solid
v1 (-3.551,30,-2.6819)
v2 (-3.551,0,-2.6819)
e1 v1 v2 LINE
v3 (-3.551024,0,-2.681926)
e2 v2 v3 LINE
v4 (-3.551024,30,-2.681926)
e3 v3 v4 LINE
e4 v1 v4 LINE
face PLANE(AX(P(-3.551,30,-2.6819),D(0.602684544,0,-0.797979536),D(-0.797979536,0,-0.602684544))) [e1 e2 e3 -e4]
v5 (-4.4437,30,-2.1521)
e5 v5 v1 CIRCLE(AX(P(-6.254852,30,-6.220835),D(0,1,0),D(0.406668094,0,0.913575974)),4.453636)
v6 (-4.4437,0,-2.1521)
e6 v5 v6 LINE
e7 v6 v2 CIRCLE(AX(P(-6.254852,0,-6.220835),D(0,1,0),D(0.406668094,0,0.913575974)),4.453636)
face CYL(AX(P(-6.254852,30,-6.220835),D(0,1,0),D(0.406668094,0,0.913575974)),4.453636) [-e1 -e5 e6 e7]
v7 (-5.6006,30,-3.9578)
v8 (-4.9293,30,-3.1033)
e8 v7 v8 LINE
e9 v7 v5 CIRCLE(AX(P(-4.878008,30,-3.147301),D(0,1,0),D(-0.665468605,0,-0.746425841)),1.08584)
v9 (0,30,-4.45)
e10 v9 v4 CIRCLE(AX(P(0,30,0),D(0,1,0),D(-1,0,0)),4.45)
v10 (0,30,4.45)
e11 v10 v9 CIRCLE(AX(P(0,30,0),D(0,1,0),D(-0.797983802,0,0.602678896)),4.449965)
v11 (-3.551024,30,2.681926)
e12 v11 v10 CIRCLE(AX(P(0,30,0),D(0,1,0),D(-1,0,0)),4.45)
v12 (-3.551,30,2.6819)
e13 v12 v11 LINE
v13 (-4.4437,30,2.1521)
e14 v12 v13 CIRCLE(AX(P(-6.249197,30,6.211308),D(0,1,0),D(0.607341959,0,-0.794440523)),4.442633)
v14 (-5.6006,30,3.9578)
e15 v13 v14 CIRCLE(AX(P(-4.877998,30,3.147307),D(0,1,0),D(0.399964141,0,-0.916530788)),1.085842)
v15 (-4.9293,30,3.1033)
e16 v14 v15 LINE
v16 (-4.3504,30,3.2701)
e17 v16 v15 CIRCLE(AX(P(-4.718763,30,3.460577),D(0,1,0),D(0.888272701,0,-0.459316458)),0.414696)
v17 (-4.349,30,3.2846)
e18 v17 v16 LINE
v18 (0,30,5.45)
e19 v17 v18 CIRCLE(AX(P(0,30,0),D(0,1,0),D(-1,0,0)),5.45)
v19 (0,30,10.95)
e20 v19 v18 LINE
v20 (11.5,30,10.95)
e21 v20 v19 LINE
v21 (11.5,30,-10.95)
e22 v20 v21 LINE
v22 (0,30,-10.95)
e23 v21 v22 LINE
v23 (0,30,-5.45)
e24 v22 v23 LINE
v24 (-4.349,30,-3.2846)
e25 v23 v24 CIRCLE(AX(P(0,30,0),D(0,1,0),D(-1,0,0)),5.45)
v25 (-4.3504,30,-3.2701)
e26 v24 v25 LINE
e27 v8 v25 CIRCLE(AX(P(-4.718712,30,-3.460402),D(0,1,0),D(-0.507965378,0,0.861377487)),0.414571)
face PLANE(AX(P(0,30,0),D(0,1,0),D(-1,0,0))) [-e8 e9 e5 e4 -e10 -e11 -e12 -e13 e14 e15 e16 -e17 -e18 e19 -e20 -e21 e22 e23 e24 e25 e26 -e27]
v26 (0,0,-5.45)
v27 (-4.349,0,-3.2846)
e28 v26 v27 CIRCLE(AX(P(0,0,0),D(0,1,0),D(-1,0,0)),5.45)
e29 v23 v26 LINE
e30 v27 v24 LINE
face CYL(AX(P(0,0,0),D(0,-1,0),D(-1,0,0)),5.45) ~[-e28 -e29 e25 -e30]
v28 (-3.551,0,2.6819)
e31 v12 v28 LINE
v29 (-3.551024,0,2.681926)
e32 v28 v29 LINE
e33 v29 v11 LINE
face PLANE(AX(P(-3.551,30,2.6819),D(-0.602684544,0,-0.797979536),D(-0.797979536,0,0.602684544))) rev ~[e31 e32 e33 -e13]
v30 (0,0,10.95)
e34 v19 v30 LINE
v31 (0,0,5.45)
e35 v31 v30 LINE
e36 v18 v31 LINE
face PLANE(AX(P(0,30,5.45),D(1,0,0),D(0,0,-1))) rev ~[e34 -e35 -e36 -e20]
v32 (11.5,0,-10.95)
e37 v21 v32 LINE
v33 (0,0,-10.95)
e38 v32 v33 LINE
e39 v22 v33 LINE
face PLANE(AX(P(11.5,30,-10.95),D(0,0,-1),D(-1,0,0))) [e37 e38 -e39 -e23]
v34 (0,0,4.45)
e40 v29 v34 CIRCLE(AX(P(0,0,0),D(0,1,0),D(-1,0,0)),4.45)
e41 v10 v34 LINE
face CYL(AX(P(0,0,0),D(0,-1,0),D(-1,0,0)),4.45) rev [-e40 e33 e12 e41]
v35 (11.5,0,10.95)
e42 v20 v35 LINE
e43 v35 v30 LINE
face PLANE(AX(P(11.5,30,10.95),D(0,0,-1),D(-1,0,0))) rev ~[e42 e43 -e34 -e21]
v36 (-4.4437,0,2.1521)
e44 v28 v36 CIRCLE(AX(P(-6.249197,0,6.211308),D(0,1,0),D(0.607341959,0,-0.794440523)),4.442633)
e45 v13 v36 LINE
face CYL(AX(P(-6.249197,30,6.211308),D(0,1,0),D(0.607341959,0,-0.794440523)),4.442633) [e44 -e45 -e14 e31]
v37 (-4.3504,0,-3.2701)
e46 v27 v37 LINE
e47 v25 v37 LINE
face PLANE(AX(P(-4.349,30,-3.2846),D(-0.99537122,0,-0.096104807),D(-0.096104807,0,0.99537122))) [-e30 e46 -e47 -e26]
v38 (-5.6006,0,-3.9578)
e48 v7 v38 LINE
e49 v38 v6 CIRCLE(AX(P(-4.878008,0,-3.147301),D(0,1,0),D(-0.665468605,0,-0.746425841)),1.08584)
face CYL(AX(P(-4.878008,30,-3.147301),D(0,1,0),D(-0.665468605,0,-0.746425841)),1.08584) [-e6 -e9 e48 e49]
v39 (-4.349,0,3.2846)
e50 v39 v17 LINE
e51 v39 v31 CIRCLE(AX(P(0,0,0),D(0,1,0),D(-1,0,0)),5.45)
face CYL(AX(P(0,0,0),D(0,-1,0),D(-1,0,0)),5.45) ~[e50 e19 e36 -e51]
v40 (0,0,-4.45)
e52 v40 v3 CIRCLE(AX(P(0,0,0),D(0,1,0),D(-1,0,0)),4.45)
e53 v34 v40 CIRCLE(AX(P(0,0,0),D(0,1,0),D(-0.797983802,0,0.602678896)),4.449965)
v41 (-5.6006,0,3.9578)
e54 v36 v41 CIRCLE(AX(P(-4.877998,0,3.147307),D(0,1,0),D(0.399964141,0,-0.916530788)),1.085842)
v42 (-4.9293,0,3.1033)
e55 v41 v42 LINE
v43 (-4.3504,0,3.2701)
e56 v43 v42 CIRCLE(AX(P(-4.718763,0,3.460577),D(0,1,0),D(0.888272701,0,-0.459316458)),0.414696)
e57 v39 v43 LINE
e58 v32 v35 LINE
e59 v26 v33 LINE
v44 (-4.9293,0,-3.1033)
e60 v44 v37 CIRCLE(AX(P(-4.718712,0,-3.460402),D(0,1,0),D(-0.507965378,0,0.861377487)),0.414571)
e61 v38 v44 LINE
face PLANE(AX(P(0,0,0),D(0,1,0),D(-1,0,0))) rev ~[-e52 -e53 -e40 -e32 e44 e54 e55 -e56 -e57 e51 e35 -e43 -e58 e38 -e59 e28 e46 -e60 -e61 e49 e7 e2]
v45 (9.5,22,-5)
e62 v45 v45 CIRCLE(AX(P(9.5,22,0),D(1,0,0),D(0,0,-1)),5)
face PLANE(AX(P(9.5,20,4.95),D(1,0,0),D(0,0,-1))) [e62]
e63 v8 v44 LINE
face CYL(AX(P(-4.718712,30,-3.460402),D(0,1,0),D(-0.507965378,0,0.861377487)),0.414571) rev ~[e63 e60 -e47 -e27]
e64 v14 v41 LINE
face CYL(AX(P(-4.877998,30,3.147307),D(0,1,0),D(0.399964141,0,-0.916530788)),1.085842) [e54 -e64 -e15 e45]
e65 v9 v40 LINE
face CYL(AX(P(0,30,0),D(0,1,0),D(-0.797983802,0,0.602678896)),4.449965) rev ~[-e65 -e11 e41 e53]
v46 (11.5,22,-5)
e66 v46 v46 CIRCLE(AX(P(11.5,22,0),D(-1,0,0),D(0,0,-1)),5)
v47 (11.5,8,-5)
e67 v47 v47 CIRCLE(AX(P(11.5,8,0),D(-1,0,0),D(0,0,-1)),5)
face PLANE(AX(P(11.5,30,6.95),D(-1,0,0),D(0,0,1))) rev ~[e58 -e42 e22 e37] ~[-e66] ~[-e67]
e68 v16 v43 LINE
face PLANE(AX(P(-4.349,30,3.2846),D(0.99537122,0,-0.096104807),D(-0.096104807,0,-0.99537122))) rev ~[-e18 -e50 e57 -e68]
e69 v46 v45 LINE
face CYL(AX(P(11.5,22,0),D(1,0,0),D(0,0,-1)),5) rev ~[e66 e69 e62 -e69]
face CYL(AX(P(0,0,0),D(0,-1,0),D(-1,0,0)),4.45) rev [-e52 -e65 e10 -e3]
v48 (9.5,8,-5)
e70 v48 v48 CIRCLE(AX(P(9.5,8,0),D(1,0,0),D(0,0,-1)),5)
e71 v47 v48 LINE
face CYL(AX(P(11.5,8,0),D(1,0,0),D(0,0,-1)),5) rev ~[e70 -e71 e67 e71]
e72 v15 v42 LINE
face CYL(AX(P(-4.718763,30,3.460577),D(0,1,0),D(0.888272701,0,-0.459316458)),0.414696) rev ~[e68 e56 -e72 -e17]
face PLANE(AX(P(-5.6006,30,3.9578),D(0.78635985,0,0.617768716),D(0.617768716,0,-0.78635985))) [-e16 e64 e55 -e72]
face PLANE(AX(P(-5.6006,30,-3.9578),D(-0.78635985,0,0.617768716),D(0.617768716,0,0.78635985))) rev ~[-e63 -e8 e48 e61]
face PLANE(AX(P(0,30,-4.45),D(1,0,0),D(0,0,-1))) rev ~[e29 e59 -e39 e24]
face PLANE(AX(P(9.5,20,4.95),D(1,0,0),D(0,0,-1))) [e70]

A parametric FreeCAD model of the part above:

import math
import FreeCAD as App
import Part
import Sketcher
from FreeCAD import Vector

doc = App.newDocument("Part")
params = doc.addObject("Spreadsheet::Sheet", "Params")
for row, (alias, value) in enumerate([
    ("sketch1_radius", "4.45 mm"),
    ("sketch1_radius2", "5.45 mm"),
    ("pad1_length", "30 mm"),
    ("sketch2_height", "6.5 mm"),
    ("sketch2_height2", "21.9 mm"),
    ("sketch2_width", "11.5 mm"),
    ("pad2_length", "30 mm"),
    ("sketch3_diameter", "10 mm"),
    ("pocket1_length", "2 mm"),
    ("sketch4_length", "1 mm"),
    ("pad3_length", "30 mm"),
], start=1):
    params.set(f"A{row}", alias)
    params.set(f"B{row}", "=" + value)
    params.setAlias(f"B{row}", alias)

body = doc.addObject("PartDesign::Body", "Body")

# Sketch on XZ plane
sketch1 = doc.addObject("Sketcher::SketchObject", "Sketch")
body.addObject(sketch1)
sketch1.AttachmentSupport = (doc.XZ_Plane, [""])
sketch1.MapMode = "FlatFace"
sketch1.addGeometry([
    Part.ArcOfCircle(Part.Circle(Vector(0, 0, 0), Vector(0, 0, 1), 4.45), math.radians(-142.937924), math.radians(142.937924)),
    Part.LineSegment(Vector(-3.551024, 2.681926, 0), Vector(-4.349, 3.2846, 0)),
    Part.ArcOfCircle(Part.Circle(Vector(0, 0, 0), Vector(0, 0, 1), 5.45), math.radians(-142.937924), math.radians(142.937924)),
    Part.LineSegment(Vector(-4.349, -3.2846, 0), Vector(-3.551024, -2.681926, 0)),
], False)
sketch1.addConstraint([
    Sketcher.Constraint("Coincident", 0, 2, 1, 1),
    Sketcher.Constraint("Coincident", 1, 2, 2, 2),
    Sketcher.Constraint("Coincident", 2, 1, 3, 1),
    Sketcher.Constraint("Coincident", 3, 2, 0, 1),
    Sketcher.Constraint("Coincident", 0, 3, -1, 1),
    Sketcher.Constraint("Coincident", 2, 3, -1, 1),
    Sketcher.Constraint("Vertical", 1, 2, 2, 1),
    Sketcher.Constraint("Vertical", 0, 2, 3, 2),
    Sketcher.Constraint("Radius", 0, 4.45),
    Sketcher.Constraint("Radius", 2, 5.45),
    Sketcher.Constraint("DistanceX", 0, 2, -1, 1, 3.551),
    Sketcher.Constraint("DistanceX", 1, 2, -1, 1, 4.349),
])
sketch1.setExpression("Constraints[8]", "Params.sketch1_radius")
sketch1.setExpression("Constraints[9]", "Params.sketch1_radius2")
pad1 = doc.addObject("PartDesign::Pad", "Pad")
body.addObject(pad1)
pad1.Profile = sketch1
pad1.setExpression("Length", "Params.pad1_length")
pad1.Reversed = True

# Sketch on XZ plane
sketch2 = doc.addObject("Sketcher::SketchObject", "Sketch001")
body.addObject(sketch2)
sketch2.AttachmentSupport = (doc.XZ_Plane, [""])
sketch2.MapMode = "FlatFace"
sketch2.AttachmentOffset = App.Placement(Vector(0, 0, -30), App.Rotation())
sketch2.addGeometry([
    Part.LineSegment(Vector(0, 4.45, 0), Vector(0, 10.95, 0)),  # 0
    Part.LineSegment(Vector(0, 10.95, 0), Vector(11.5, 10.95, 0)),  # 1
    Part.LineSegment(Vector(11.5, 10.95, 0), Vector(11.5, -10.95, 0)),  # 2
    Part.LineSegment(Vector(11.5, -10.95, 0), Vector(0, -10.95, 0)),  # 3
    Part.LineSegment(Vector(0, -10.95, 0), Vector(0, -4.45, 0)),  # 4
    Part.ArcOfCircle(Part.Circle(Vector(0, 0, 0), Vector(0, 0, 1), 4.449965), math.radians(-90), math.radians(90)),  # 5
], False)
sketch2.addConstraint([
    Sketcher.Constraint("Coincident", 0, 2, 1, 1),
    Sketcher.Constraint("Coincident", 1, 2, 2, 1),
    Sketcher.Constraint("Coincident", 2, 2, 3, 1),
    Sketcher.Constraint("Coincident", 3, 2, 4, 1),
    Sketcher.Constraint("Coincident", 4, 2, 5, 1),
    Sketcher.Constraint("Coincident", 5, 2, 0, 1),
    Sketcher.Constraint("Vertical", 0),
    Sketcher.Constraint("Horizontal", 1),
    Sketcher.Constraint("Vertical", 2),
    Sketcher.Constraint("Horizontal", 3),
    Sketcher.Constraint("Vertical", 4),
    Sketcher.Constraint("Coincident", 5, 3, -1, 1),
    Sketcher.Constraint("Symmetric", 0, 2, 3, 2, -1, 1),
    Sketcher.Constraint("PointOnObject", 0, 2, -2),
    Sketcher.Constraint("DistanceY", 0, 1, 0, 2, 6.5),
    Sketcher.Constraint("DistanceY", 2, 2, 2, 1, 21.9),
    Sketcher.Constraint("DistanceX", 1, 1, 1, 2, 11.5),
])
sketch2.setExpression("Constraints[14]", "Params.sketch2_height")
sketch2.setExpression("Constraints[15]", "Params.sketch2_height2")
sketch2.setExpression("Constraints[16]", "Params.sketch2_width")
pad2 = doc.addObject("PartDesign::Pad", "Pad001")
body.addObject(pad2)
pad2.Profile = sketch2
pad2.setExpression("Length", "Params.pad2_length")

# Sketch on YZ plane
sketch3 = doc.addObject("Sketcher::SketchObject", "Sketch002")
body.addObject(sketch3)
sketch3.AttachmentSupport = (doc.YZ_Plane, [""])
sketch3.MapMode = "FlatFace"
sketch3.AttachmentOffset = App.Placement(Vector(0, 0, 11.5), App.Rotation())
sketch3.addGeometry([
    Part.Circle(Vector(8, 0, 0), Vector(0, 0, 1), 5),
    Part.Circle(Vector(22, 0, 0), Vector(0, 0, 1), 5),
], False)
sketch3.addConstraint([
    Sketcher.Constraint("Equal", 0, 1),
    Sketcher.Constraint("PointOnObject", 0, 3, -1),
    Sketcher.Constraint("PointOnObject", 1, 3, -1),
    Sketcher.Constraint("Diameter", 0, 10.0),
    Sketcher.Constraint("DistanceX", -1, 1, 0, 3, 8.0),
    Sketcher.Constraint("DistanceX", -1, 1, 1, 3, 22.0),
])
sketch3.setExpression("Constraints[3]", "Params.sketch3_diameter")
pocket1 = doc.addObject("PartDesign::Pocket", "Pocket")
body.addObject(pocket1)
pocket1.Profile = sketch3
pocket1.setExpression("Length", "Params.pocket1_length")

# Sketch on XZ plane
sketch4 = doc.addObject("Sketcher::SketchObject", "Sketch003")
body.addObject(sketch4)
sketch4.AttachmentSupport = (doc.XZ_Plane, [""])
sketch4.MapMode = "FlatFace"
sketch4.AttachmentOffset = App.Placement(Vector(0, 0, -30), App.Rotation())
sketch4.addGeometry([
    Part.LineSegment(Vector(-4.349, 3.2846, 0), Vector(-3.551, 2.6819, 0)),  # 0
    Part.ArcOfCircle(Part.Circle(Vector(-6.249197, 6.211308, 0), Vector(0, 0, 1), 4.442633), math.radians(-66.020951), math.radians(-52.602444)),  # 1
    Part.ArcOfCircle(Part.Circle(Vector(-4.878, 3.1473, 0), Vector(0, 0, 1), 1.085836), math.radians(131.71855), math.radians(293.576201)),  # 2
    Part.LineSegment(Vector(-5.6006, 3.9578, 0), Vector(-4.9293, 3.1033, 0)),  # 3
    Part.ArcOfCircle(Part.Circle(Vector(-4.7187, 3.4605, 0), Vector(0, 0, 1), 0.414605), math.radians(-120.522992), math.radians(-27.337601)),  # 4
    Part.LineSegment(Vector(-4.3504, 3.2701, 0), Vector(-4.349, 3.2846, 0)),  # 5
    Part.ArcOfCircle(Part.Circle(Vector(-4.878, -3.1473, 0), Vector(0, 0, 1), 1.085846), math.radians(66.423799), math.radians(228.28145)),  # 6
    Part.ArcOfCircle(Part.Circle(Vector(-6.254852, -6.220835, 0), Vector(0, 0, 1), 4.453636), math.radians(52.619095), math.radians(66.004299)),  # 7
    Part.LineSegment(Vector(-3.551, -2.6819, 0), Vector(-4.349, -3.2846, 0)),  # 8
    Part.LineSegment(Vector(-4.349, -3.2846, 0), Vector(-4.3504, -3.2701, 0)),  # 9
    Part.ArcOfCircle(Part.Circle(Vector(-4.7187, -3.4605, 0), Vector(0, 0, 1), 0.414662), math.radians(27.337601), math.radians(120.522992)),  # 10
    Part.LineSegment(Vector(-4.9293, -3.1033, 0), Vector(-5.6006, -3.9578, 0)),  # 11
], False)
sketch4.addConstraint([
    Sketcher.Constraint("Coincident", 0, 2, 1, 2),
    Sketcher.Constraint("Coincident", 1, 1, 2, 2),
    Sketcher.Constraint("Coincident", 2, 1, 3, 1),
    Sketcher.Constraint("Coincident", 3, 2, 4, 1),
    Sketcher.Constraint("Coincident", 4, 2, 5, 1),
    Sketcher.Constraint("Coincident", 5, 2, 0, 1),
    Sketcher.Constraint("Coincident", 6, 1, 7, 2),
    Sketcher.Constraint("Coincident", 7, 1, 8, 1),
    Sketcher.Constraint("Coincident", 8, 2, 9, 1),
    Sketcher.Constraint("Coincident", 9, 2, 10, 1),
    Sketcher.Constraint("Coincident", 10, 2, 11, 1),
    Sketcher.Constraint("Coincident", 11, 2, 6, 2),
    Sketcher.Constraint("Equal", 2, 6),
    Sketcher.Constraint("Equal", 4, 10),
    Sketcher.Constraint("Symmetric", 2, 3, 6, 3, -1),
    Sketcher.Constraint("Symmetric", 4, 3, 10, 3, -1),
    Sketcher.Constraint("Symmetric", 0, 2, 7, 1, -1),
    Sketcher.Constraint("Symmetric", 5, 2, 8, 2, -1),
    Sketcher.Constraint("Vertical", 1, 1, 6, 1),
    Sketcher.Constraint("Vertical", 4, 2, 9, 2),
    Sketcher.Constraint("Vertical", 3, 2, 10, 2),
    Sketcher.Constraint("Vertical", 2, 1, 11, 2),
    Sketcher.Constraint("Radius", 2, 1.0858),
    Sketcher.Constraint("Distance", 0, 1.0),
    Sketcher.Constraint("Radius", 1, 4.4426),
    Sketcher.Constraint("Radius", 4, 0.4146),
    Sketcher.Constraint("Radius", 7, 4.4536),
    Sketcher.Constraint("DistanceY", -1, 1, 4, 2, 3.27),
    Sketcher.Constraint("DistanceX", 2, 3, -1, 1, 4.878),
    Sketcher.Constraint("DistanceX", 0, 2, -1, 1, 3.551),
    Sketcher.Constraint("DistanceY", -1, 1, 0, 2, 2.682),
    Sketcher.Constraint("DistanceY", -1, 1, 1, 1, 2.152),
    Sketcher.Constraint("DistanceX", 5, 2, -1, 1, 4.349),
    Sketcher.Constraint("DistanceY", 2, 3, 1, 3, 3.064),
    Sketcher.Constraint("DistanceY", 10, 3, 4, 3, 6.921),
    Sketcher.Constraint("DistanceX", 4, 3, 1, 1, 0.275),
    Sketcher.Constraint("DistanceX", 2, 1, 4, 3, 0.882),
    Sketcher.Constraint("DistanceY", 3, 2, 2, 3, 0.044),
])
sketch4.setExpression("Constraints[23]", "Params.sketch4_length")
pad3 = doc.addObject("PartDesign::Pad", "Pad002")
body.addObject(pad3)
pad3.Profile = sketch4
pad3.setExpression("Length", "Params.pad3_length")

doc.recompute()
